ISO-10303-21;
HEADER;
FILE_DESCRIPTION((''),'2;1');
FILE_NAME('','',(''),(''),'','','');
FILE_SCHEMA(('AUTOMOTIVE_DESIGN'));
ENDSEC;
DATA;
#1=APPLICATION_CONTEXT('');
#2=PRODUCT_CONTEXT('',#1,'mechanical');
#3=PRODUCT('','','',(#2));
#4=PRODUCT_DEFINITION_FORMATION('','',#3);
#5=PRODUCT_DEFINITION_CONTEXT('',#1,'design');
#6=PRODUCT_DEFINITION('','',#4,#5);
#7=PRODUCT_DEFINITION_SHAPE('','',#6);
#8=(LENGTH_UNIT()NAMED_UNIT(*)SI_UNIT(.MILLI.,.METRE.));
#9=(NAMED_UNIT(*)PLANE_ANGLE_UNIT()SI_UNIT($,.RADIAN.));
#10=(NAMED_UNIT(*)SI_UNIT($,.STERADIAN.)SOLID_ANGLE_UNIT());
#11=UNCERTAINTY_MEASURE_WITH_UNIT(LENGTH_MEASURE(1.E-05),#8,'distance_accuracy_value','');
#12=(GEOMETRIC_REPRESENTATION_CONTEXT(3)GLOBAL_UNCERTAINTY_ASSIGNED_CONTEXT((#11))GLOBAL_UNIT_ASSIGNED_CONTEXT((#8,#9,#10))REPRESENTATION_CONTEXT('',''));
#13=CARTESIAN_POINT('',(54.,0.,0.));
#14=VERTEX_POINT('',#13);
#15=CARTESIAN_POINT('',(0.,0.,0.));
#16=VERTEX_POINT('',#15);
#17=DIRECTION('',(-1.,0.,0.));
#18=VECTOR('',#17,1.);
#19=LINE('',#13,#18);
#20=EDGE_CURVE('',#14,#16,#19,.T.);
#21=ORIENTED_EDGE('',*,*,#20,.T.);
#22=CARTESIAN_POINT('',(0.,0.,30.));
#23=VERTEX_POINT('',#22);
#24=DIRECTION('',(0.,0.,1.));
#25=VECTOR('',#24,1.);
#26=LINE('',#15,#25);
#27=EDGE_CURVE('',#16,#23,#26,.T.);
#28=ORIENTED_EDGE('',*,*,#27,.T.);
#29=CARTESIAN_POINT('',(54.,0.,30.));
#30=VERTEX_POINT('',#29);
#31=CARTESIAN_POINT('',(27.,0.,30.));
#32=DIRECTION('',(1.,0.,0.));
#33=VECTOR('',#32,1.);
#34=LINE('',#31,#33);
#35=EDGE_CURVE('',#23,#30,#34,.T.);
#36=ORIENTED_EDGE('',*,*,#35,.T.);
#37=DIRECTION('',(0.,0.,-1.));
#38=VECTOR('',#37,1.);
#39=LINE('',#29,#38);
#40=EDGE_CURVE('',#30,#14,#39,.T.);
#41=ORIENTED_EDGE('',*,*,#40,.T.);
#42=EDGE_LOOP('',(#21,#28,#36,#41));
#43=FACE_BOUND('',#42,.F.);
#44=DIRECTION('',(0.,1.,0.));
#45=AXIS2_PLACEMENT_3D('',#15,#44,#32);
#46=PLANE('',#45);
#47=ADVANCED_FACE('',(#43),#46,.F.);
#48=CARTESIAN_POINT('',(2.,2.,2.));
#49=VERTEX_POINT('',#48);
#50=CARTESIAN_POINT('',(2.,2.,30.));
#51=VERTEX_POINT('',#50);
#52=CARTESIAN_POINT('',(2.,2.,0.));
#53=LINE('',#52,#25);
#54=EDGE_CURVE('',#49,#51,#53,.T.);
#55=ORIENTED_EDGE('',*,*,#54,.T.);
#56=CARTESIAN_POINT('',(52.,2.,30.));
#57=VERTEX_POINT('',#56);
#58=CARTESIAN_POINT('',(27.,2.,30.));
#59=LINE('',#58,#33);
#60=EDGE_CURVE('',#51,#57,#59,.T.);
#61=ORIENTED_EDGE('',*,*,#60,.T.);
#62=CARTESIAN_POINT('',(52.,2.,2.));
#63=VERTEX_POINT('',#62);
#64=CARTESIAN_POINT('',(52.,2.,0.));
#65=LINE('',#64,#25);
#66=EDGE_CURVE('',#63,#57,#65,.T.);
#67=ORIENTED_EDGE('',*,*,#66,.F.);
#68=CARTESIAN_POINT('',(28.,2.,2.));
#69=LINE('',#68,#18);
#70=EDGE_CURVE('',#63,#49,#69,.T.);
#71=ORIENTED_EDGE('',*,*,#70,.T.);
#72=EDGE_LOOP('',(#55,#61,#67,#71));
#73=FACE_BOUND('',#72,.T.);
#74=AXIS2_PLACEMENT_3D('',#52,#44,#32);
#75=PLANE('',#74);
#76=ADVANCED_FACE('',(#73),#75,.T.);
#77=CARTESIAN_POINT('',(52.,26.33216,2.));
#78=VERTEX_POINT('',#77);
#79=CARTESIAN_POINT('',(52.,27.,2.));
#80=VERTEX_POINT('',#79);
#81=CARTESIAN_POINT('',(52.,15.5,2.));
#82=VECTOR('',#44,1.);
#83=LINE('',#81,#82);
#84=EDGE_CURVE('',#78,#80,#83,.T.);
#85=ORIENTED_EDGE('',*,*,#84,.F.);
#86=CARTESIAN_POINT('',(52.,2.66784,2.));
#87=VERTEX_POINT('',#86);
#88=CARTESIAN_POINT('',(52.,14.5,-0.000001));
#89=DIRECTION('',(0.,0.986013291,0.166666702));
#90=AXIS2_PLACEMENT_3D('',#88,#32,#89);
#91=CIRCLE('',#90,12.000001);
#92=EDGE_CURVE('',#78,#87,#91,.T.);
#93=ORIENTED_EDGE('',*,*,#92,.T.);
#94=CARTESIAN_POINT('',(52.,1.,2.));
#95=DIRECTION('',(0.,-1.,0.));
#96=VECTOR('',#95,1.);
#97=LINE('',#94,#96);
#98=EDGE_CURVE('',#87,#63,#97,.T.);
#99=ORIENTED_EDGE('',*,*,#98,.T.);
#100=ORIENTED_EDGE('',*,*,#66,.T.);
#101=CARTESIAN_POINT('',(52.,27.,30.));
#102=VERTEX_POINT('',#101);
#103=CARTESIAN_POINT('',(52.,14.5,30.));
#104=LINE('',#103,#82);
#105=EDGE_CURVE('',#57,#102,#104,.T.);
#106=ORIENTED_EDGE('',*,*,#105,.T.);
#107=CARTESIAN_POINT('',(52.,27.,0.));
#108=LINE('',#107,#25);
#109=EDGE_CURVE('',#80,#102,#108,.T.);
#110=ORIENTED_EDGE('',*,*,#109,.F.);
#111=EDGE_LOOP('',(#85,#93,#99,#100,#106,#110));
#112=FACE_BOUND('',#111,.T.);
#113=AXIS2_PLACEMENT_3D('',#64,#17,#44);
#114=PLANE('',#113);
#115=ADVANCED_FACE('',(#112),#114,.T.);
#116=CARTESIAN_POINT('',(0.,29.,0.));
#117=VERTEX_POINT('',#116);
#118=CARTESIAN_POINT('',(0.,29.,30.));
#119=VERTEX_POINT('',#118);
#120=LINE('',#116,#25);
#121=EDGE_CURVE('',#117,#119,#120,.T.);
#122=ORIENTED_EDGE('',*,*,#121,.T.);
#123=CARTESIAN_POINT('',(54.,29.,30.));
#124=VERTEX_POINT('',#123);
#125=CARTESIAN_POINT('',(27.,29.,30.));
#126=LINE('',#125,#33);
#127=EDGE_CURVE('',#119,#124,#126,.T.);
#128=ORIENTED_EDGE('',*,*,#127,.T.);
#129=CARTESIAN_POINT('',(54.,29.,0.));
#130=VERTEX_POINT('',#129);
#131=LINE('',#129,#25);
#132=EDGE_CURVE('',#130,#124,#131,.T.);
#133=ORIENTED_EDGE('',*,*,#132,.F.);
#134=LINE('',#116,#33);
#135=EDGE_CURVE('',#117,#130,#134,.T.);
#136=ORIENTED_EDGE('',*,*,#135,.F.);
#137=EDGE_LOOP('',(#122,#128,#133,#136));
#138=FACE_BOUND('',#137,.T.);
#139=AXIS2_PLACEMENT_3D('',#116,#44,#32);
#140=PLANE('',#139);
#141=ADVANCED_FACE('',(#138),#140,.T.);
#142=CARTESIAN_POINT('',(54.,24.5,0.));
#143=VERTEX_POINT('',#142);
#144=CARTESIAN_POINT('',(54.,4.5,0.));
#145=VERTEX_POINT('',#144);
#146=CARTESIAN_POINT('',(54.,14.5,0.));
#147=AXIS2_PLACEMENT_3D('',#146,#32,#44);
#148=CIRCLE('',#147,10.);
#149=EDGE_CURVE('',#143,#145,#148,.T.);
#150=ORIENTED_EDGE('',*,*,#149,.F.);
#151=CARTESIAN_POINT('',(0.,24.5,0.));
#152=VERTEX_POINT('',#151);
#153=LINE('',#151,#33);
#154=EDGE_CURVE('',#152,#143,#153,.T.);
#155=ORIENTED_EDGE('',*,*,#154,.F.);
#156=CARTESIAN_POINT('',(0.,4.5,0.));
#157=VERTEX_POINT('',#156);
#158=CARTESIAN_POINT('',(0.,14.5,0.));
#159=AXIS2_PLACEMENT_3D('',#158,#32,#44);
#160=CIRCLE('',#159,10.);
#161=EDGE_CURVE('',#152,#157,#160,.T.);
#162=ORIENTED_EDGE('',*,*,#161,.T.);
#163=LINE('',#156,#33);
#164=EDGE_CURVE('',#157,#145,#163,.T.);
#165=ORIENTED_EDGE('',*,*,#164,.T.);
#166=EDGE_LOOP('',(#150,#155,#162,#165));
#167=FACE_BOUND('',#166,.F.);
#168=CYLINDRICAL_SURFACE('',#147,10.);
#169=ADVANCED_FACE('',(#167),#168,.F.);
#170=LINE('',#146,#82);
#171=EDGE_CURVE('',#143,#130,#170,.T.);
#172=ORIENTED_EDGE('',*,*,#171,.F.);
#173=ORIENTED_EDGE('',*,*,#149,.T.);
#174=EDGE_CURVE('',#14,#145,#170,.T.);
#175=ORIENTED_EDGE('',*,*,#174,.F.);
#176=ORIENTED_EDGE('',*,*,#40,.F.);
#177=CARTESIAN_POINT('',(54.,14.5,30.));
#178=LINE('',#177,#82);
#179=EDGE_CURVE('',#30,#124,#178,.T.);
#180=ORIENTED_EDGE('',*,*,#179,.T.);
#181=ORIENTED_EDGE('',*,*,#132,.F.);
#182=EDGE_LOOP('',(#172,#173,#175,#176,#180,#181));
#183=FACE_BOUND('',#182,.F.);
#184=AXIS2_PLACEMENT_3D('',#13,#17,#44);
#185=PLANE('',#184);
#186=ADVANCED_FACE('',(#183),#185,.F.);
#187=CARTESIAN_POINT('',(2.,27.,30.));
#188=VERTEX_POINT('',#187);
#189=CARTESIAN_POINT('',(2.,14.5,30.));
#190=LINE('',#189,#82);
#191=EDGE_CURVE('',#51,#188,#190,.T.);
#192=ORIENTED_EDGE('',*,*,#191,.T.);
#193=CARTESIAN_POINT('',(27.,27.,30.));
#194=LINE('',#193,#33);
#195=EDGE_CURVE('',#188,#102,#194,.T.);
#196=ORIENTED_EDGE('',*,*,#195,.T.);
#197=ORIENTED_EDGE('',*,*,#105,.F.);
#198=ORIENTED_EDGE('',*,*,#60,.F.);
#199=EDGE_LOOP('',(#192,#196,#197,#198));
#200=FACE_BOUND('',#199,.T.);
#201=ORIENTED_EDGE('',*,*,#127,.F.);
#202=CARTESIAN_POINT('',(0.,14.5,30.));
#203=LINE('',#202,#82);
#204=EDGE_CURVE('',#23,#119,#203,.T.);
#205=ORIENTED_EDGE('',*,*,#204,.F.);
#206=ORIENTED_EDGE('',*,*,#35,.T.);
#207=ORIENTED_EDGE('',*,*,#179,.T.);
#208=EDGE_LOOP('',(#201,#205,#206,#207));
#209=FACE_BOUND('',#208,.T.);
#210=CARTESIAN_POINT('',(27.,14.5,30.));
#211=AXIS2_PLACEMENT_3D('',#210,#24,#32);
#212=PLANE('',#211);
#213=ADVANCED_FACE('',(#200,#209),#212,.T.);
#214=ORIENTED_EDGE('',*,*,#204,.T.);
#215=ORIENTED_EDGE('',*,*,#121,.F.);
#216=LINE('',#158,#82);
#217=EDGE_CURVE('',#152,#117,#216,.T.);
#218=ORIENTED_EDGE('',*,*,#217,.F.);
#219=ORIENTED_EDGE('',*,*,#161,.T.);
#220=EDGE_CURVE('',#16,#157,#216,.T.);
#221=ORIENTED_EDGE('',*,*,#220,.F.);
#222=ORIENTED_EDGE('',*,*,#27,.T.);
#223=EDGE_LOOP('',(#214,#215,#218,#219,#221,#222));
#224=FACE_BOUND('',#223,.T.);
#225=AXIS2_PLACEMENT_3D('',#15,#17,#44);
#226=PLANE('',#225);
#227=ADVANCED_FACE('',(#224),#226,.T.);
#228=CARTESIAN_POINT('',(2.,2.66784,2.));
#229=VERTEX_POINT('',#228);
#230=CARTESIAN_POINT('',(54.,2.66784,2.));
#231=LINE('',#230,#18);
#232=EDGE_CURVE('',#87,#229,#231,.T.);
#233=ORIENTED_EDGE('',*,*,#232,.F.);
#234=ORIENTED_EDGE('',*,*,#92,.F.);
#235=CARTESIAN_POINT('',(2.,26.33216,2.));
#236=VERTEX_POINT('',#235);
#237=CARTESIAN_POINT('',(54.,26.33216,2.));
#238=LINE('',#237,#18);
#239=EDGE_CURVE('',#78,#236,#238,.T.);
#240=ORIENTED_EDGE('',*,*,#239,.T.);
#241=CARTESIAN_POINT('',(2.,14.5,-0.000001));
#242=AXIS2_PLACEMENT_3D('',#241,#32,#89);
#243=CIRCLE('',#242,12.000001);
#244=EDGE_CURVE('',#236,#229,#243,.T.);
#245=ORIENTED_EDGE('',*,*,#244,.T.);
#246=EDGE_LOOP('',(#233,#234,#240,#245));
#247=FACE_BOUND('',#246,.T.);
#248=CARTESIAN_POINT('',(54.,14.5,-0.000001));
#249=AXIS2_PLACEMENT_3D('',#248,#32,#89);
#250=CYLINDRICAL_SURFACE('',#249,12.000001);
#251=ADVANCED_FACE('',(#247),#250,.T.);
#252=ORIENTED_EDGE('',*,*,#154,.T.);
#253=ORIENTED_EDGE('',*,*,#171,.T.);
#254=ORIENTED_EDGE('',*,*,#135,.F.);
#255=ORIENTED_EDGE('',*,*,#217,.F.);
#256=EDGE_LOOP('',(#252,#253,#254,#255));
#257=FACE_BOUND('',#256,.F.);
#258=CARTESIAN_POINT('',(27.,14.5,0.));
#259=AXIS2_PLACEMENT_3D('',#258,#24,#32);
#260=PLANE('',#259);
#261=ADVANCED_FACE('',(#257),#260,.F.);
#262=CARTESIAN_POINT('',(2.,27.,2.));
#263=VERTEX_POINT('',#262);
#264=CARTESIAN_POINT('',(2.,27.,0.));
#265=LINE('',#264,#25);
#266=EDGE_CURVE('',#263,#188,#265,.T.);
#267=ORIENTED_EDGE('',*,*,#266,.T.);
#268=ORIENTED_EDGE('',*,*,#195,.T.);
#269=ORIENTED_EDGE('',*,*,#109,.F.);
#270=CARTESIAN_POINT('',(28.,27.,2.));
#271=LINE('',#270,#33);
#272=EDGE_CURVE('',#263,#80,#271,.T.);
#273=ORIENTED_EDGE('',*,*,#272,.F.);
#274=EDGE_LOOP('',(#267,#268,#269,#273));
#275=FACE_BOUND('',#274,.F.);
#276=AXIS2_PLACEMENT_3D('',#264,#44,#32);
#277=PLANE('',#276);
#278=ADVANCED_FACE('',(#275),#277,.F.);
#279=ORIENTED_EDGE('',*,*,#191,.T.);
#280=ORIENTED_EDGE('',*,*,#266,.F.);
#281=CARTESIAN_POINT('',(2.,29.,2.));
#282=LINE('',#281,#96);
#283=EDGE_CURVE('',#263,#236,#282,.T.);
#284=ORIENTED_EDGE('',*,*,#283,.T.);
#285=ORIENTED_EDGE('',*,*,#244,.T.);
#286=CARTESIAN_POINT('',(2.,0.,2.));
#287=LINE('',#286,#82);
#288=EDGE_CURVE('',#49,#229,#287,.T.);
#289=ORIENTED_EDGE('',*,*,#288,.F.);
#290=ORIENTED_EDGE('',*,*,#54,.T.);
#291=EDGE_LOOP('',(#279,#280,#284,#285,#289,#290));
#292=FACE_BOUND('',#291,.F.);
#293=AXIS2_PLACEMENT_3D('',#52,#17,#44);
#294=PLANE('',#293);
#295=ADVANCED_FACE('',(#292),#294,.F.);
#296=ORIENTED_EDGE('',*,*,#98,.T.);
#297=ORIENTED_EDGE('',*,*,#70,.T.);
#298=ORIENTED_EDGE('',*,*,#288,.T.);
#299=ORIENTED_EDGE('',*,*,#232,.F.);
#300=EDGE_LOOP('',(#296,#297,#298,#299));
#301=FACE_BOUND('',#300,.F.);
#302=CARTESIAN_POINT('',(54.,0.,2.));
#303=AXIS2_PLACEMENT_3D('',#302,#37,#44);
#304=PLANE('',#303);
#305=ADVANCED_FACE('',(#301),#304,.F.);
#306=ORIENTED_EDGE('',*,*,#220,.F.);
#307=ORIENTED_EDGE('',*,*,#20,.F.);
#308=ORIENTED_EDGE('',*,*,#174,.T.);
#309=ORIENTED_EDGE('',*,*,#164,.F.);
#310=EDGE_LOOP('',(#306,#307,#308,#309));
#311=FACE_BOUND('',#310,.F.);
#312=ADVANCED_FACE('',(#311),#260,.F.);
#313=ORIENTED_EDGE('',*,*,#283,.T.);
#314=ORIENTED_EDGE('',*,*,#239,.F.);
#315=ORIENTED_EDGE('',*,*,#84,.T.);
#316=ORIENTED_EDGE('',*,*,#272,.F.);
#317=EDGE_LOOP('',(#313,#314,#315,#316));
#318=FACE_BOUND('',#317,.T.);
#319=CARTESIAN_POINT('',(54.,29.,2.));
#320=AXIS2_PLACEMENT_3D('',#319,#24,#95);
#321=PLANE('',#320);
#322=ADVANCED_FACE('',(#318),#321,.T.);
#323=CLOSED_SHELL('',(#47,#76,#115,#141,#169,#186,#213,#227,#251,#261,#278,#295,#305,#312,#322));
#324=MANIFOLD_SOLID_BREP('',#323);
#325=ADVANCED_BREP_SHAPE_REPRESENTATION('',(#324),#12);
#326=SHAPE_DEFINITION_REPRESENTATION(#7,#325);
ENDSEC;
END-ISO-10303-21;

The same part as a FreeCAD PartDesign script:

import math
import FreeCAD as App
import Part
import Sketcher
from FreeCAD import Vector
Q = App.Units.Quantity

doc = App.newDocument("Part")
params = doc.addObject("Spreadsheet::Sheet", "Params")
for row, (alias, value) in enumerate([
    ("sketch1_width", "54 mm"),
    ("sketch1_width2", "50 mm"),
    ("sketch1_height", "29 mm"),
    ("sketch1_height2", "25 mm"),
    ("pad1_length", "30 mm"),
    ("sketch2_radius", "10 mm"),
    ("sketch3_radius", "10 mm"),
    ("sketch3_radius2", "12.000001 mm"),
    ("sketch3_height", "2 mm"),
    ("sketch3_width", "4.5 mm"),
    ("pad2_length", "52 mm"),
], start=1):
    params.set(f"A{row}", alias)
    params.set(f"B{row}", "=" + value)
    params.setAlias(f"B{row}", alias)

body = doc.addObject("PartDesign::Body", "Body")

# Sketch on XY plane
sketch1 = doc.addObject("Sketcher::SketchObject", "Sketch")
body.addObject(sketch1)
sketch1.AttachmentSupport = (doc.XY_Plane, [""])
sketch1.MapMode = "FlatFace"
sketch1.addGeometry([
    Part.LineSegment(Vector(0, 29, 0), Vector(0, 0, 0)),  # 0
    Part.LineSegment(Vector(0, 0, 0), Vector(54, 0, 0)),  # 1
    Part.LineSegment(Vector(54, 0, 0), Vector(54, 29, 0)),  # 2
    Part.LineSegment(Vector(54, 29, 0), Vector(0, 29, 0)),  # 3
    Part.LineSegment(Vector(52, 2, 0), Vector(2, 2, 0)),  # 4
    Part.LineSegment(Vector(2, 2, 0), Vector(2, 27, 0)),  # 5
    Part.LineSegment(Vector(2, 27, 0), Vector(52, 27, 0)),  # 6
    Part.LineSegment(Vector(52, 27, 0), Vector(52, 2, 0)),  # 7
], False)
sketch1.addConstraint([
    Sketcher.Constraint("Coincident", 0, 2, 1, 1),
    Sketcher.Constraint("Coincident", 1, 2, 2, 1),
    Sketcher.Constraint("Coincident", 2, 2, 3, 1),
    Sketcher.Constraint("Coincident", 3, 2, 0, 1),
    Sketcher.Constraint("Coincident", 4, 2, 5, 1),
    Sketcher.Constraint("Coincident", 5, 2, 6, 1),
    Sketcher.Constraint("Coincident", 6, 2, 7, 1),
    Sketcher.Constraint("Coincident", 7, 2, 4, 1),
    Sketcher.Constraint("Vertical", 0),
    Sketcher.Constraint("Horizontal", 1),
    Sketcher.Constraint("Vertical", 2),
    Sketcher.Constraint("Horizontal", 3),
    Sketcher.Constraint("Horizontal", 4),
    Sketcher.Constraint("Vertical", 5),
    Sketcher.Constraint("Horizontal", 6),
    Sketcher.Constraint("Vertical", 7),
    Sketcher.Constraint("Coincident", 0, 2, -1, 1),
    Sketcher.Constraint("DistanceX", 1, 1, 1, 2, Q("54 mm")),
    Sketcher.Constraint("DistanceX", 4, 2, 4, 1, Q("50 mm")),
    Sketcher.Constraint("DistanceY", 0, 2, 0, 1, Q("29 mm")),
    Sketcher.Constraint("DistanceY", 5, 1, 5, 2, Q("25 mm")),
    Sketcher.Constraint("DistanceX", -1, 1, 4, 2, Q("2 mm")),
    Sketcher.Constraint("DistanceY", -1, 1, 4, 2, Q("2 mm")),
])
sketch1.setExpression("Constraints[17]", "Params.sketch1_width")
sketch1.setExpression("Constraints[18]", "Params.sketch1_width2")
sketch1.setExpression("Constraints[19]", "Params.sketch1_height")
sketch1.setExpression("Constraints[20]", "Params.sketch1_height2")
pad1 = doc.addObject("PartDesign::Pad", "Pad")
body.addObject(pad1)
pad1.Profile = sketch1
pad1.setExpression("Length", "Params.pad1_length")

# Sketch on YZ plane
sketch2 = doc.addObject("Sketcher::SketchObject", "Sketch001")
body.addObject(sketch2)
sketch2.AttachmentSupport = (doc.YZ_Plane, [""])
sketch2.MapMode = "FlatFace"
sketch2.AttachmentOffset = App.Placement(Vector(0, 0, 54), App.Rotation())
sketch2.addGeometry([
    Part.ArcOfCircle(Part.Circle(Vector(14, 0, 0), Vector(0, 0, 1), 10), math.radians(0), math.radians(180)),
    Part.LineSegment(Vector(4, 0, 0), Vector(24, 0, 0)),
], False)
sketch2.addConstraint([
    Sketcher.Constraint("Coincident", 0, 1, 1, 2),
    Sketcher.Constraint("Coincident", 1, 1, 0, 2),
    Sketcher.Constraint("Horizontal", 1),
    Sketcher.Constraint("PointOnObject", 0, 3, -1),
    Sketcher.Constraint("PointOnObject", 0, 1, -1),
    Sketcher.Constraint("Radius", 0, Q("10 mm")),
    Sketcher.Constraint("DistanceX", -1, 1, 0, 3, Q("14.5 mm")),
])
sketch2.setExpression("Constraints[5]", "Params.sketch2_radius")
pocket1 = doc.addObject("PartDesign::Pocket", "Pocket")
body.addObject(pocket1)
pocket1.Profile = sketch2
pocket1.Type = "ThroughAll"

# Sketch on YZ plane
sketch3 = doc.addObject("Sketcher::SketchObject", "Sketch002")
body.addObject(sketch3)
sketch3.AttachmentSupport = (doc.YZ_Plane, [""])
sketch3.MapMode = "FlatFace"
sketch3.AttachmentOffset = App.Placement(Vector(0, 0, 54), App.Rotation())
sketch3.addGeometry([
    Part.ArcOfCircle(Part.Circle(Vector(14.5, 0, 0), Vector(0, 0, 1), 10), math.radians(0), math.radians(180)),  # 0
    Part.LineSegment(Vector(24.5, 0, 0), Vector(29, 0, 0)),  # 1
    Part.LineSegment(Vector(29, 0, 0), Vector(29, 2, 0)),  # 2
    Part.LineSegment(Vector(29, 2, 0), Vector(26.3, 2, 0)),  # 3
    Part.ArcOfCircle(Part.Circle(Vector(14.5, 0, 0), Vector(0, 0, 1), 12), math.radians(10), math.radians(170)),  # 4
    Part.LineSegment(Vector(2.7, 2, 0), Vector(0, 2, 0)),  # 5
    Part.LineSegment(Vector(0, 2, 0), Vector(0, 0, 0)),  # 6
    Part.LineSegment(Vector(0, 0, 0), Vector(4.5, 0, 0)),  # 7
], False)
sketch3.addConstraint([
    Sketcher.Constraint("Coincident", 0, 1, 1, 1),
    Sketcher.Constraint("Coincident", 1, 2, 2, 1),
    Sketcher.Constraint("Coincident", 2, 2, 3, 1),
    Sketcher.Constraint("Coincident", 3, 2, 4, 1),
    Sketcher.Constraint("Coincident", 4, 2, 5, 1),
    Sketcher.Constraint("Coincident", 5, 2, 6, 1),
    Sketcher.Constraint("Coincident", 6, 2, 7, 1),
    Sketcher.Constraint("Coincident", 7, 2, 0, 2),
    Sketcher.Constraint("Horizontal", 1),
    Sketcher.Constraint("Vertical", 2),
    Sketcher.Constraint("Horizontal", 3),
    Sketcher.Constraint("Horizontal", 5),
    Sketcher.Constraint("Vertical", 6),
    Sketcher.Constraint("Horizontal", 7),
    Sketcher.Constraint("Coincident", 6, 2, -1, 1),
    Sketcher.Constraint("Coincident", 4, 3, 0, 3),
    Sketcher.Constraint("PointOnObject", 0, 3, -1),
    Sketcher.Constraint("PointOnObject", 0, 1, -1),
    Sketcher.Constraint("Horizontal", 3, 2, 4, 2),
    Sketcher.Constraint("Equal", 3, 5),
    Sketcher.Constraint("Radius", 0, Q("10 mm")),
    Sketcher.Constraint("Radius", 4, Q("12.000001 mm")),
    Sketcher.Constraint("DistanceY", 2, 1, 2, 2, Q("2 mm")),
    Sketcher.Constraint("DistanceX", 1, 1, 1, 2, Q("4.5 mm")),
])
sketch3.setExpression("Constraints[20]", "Params.sketch3_radius")
sketch3.setExpression("Constraints[21]", "Params.sketch3_radius2")
sketch3.setExpression("Constraints[22]", "Params.sketch3_height")
sketch3.setExpression("Constraints[23]", "Params.sketch3_width")
pad2 = doc.addObject("PartDesign::Pad", "Pad001")
body.addObject(pad2)
pad2.Profile = sketch3
pad2.setExpression("Length", "Params.pad2_length")
pad2.Reversed = True

doc.recompute()
